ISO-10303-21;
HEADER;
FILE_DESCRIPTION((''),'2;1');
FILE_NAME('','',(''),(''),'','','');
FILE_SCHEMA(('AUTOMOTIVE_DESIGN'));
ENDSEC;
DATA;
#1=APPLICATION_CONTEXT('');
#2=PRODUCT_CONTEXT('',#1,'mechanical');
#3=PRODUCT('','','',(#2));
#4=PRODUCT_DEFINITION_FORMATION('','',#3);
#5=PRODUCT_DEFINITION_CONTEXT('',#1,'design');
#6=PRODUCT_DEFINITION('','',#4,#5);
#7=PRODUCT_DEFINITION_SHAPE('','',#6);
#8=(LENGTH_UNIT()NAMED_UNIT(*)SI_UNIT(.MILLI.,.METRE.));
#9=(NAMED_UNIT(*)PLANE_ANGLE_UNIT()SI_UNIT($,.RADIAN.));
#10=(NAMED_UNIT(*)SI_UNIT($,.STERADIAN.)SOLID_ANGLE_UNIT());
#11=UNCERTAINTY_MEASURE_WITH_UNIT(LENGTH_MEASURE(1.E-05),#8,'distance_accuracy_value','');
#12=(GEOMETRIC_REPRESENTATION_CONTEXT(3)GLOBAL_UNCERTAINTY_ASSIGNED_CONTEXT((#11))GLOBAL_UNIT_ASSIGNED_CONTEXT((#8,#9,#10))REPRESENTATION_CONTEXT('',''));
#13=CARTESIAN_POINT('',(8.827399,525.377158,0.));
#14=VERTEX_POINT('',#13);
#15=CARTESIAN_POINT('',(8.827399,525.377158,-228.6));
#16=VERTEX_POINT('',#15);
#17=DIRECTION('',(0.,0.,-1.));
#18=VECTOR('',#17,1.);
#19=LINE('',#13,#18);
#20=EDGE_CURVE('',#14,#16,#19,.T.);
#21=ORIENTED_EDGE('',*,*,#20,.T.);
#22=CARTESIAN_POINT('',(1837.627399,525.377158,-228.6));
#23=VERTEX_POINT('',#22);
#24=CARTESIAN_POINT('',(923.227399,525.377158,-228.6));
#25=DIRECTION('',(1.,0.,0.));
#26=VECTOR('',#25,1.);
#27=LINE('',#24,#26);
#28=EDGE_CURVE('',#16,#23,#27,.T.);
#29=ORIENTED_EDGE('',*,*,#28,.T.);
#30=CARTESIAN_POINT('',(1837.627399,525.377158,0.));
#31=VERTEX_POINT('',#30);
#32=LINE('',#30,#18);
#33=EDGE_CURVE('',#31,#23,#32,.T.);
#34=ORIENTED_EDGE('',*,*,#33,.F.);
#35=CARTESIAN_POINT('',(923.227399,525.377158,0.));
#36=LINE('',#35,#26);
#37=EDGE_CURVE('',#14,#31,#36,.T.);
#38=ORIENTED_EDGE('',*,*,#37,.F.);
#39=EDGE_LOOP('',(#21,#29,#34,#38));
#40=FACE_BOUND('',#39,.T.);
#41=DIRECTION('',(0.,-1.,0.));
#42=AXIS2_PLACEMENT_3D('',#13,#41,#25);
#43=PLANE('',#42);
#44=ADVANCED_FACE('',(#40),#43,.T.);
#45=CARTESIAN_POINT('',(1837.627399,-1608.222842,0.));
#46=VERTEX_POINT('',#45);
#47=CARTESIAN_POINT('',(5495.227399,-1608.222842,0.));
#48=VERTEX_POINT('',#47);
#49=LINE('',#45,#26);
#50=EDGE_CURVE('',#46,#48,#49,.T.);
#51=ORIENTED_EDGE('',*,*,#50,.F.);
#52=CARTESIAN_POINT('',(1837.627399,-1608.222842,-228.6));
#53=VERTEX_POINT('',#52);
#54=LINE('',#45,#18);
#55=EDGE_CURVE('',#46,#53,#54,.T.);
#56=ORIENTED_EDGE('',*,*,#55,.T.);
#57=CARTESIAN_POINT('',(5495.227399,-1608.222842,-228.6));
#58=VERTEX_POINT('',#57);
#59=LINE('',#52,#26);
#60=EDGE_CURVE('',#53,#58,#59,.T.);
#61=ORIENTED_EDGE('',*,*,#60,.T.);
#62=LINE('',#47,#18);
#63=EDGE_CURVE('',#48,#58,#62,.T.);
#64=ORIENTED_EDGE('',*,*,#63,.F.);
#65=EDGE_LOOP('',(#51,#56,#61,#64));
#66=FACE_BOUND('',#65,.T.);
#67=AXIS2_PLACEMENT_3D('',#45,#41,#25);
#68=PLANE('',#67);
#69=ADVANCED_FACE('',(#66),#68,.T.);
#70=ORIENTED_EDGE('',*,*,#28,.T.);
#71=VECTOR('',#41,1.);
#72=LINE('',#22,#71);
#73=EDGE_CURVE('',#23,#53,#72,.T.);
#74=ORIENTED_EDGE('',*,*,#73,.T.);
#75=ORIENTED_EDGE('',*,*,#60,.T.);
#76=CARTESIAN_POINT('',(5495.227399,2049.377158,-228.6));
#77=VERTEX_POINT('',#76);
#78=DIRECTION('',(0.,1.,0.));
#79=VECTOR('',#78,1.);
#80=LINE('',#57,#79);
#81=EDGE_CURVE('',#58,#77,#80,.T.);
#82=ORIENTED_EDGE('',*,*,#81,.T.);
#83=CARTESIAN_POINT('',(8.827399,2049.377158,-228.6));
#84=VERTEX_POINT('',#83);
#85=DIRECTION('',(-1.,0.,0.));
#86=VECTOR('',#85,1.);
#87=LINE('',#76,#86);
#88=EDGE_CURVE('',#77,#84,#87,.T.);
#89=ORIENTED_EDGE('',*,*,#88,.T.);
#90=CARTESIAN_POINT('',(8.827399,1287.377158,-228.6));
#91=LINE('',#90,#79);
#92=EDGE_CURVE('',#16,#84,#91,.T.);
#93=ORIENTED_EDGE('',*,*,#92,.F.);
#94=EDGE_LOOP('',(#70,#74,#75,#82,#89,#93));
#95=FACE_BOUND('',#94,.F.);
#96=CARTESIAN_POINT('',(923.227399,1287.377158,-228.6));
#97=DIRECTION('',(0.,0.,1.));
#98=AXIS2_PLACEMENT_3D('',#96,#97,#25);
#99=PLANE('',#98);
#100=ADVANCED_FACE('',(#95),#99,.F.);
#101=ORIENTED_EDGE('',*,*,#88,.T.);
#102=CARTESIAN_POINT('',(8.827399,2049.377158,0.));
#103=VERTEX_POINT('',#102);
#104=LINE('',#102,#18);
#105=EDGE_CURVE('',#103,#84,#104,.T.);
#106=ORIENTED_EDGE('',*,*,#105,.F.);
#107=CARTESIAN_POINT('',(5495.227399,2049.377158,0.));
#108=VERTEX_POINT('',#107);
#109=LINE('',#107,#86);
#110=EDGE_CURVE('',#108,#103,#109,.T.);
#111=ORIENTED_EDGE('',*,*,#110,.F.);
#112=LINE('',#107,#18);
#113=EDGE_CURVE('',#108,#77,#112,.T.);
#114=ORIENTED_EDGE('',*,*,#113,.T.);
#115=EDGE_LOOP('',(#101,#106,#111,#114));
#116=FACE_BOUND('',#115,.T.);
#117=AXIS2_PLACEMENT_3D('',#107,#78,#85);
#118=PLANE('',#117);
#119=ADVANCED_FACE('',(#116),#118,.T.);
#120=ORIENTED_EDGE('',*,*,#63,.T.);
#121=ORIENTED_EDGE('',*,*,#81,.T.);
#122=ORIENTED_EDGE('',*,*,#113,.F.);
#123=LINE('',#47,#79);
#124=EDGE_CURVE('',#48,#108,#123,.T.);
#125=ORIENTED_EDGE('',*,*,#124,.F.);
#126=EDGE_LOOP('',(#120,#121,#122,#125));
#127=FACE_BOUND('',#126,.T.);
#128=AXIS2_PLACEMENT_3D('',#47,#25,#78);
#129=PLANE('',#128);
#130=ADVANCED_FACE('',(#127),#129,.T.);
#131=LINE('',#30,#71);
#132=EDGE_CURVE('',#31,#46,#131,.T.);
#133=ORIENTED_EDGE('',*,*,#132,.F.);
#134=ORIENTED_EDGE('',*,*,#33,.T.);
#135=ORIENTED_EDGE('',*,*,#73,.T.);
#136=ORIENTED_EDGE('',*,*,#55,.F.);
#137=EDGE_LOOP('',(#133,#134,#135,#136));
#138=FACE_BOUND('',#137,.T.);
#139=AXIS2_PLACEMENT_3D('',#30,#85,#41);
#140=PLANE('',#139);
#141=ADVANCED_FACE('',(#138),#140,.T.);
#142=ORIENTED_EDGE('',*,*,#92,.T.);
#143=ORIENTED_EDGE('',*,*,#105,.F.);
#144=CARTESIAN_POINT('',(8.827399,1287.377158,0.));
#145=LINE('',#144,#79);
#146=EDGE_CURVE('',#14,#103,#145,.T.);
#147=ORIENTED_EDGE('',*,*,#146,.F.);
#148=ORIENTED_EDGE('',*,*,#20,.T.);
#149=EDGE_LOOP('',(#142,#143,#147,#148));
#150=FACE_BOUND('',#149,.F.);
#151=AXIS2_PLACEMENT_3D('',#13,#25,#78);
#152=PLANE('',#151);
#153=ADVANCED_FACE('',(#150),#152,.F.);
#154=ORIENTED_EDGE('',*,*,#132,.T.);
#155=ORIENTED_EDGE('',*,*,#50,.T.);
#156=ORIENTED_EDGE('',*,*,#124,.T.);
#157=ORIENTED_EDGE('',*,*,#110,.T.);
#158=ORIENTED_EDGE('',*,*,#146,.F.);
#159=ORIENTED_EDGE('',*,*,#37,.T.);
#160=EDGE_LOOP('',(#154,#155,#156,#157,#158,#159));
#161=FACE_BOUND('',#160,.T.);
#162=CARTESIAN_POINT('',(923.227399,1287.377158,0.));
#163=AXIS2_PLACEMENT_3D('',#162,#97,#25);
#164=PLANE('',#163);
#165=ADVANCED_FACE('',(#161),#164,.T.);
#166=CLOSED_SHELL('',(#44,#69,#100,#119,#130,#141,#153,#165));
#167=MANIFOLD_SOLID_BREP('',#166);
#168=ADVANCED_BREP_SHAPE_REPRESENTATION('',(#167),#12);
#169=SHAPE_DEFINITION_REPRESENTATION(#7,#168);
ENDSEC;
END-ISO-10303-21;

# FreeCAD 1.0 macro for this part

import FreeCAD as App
import Part
import Sketcher

V = App.Vector
Q = App.Units.Quantity


def add_polygon(sketch, points):
    """Adds a closed chain of lines whose ends are joined by coincident constraints."""
    first, n = sketch.GeometryCount, len(points)
    for a, b in zip(points, points[1:] + points[:1]):
        sketch.addGeometry(Part.LineSegment(App.Vector(*a, 0), App.Vector(*b, 0)), False)
    for i in range(n):
        sketch.addConstraint(Sketcher.Constraint("Coincident", first + i, 2, first + (i + 1) % n, 1))

doc = App.newDocument("Part")
body = doc.addObject("PartDesign::Body", "Body")

sketch1 = body.newObject("Sketcher::SketchObject", "Sketch")
sketch1.AttachmentSupport = (doc.getObject("XY_Plane"), [""])
sketch1.MapMode = "FlatFace"
add_polygon(sketch1, [(9, 2049), (9, 525), (1838, 525), (1838, -1608), (5495, -1608), (5495, 2049)])
sketch1.addConstraint([
    Sketcher.Constraint("Vertical", 0),
    Sketcher.Constraint("Horizontal", 1),
    Sketcher.Constraint("Vertical", 2),
    Sketcher.Constraint("Horizontal", 3),
    Sketcher.Constraint("Vertical", 4),
    Sketcher.Constraint("Horizontal", 5),
    Sketcher.Constraint("Equal", 3, 4),
    Sketcher.Constraint("DistanceX", 1, 1, 1, 2, Q("72 in")),
    Sketcher.Constraint("DistanceX", 3, 1, 3, 2, Q("144 in")),
    Sketcher.Constraint("DistanceY", 0, 2, 0, 1, Q("60 in")),
    Sketcher.Constraint("DistanceX", -1, 1, 0, 2, 8.827399),
    Sketcher.Constraint("DistanceY", -1, 1, 0, 2, 525.377158),
])
pad1 = body.newObject("PartDesign::Pad", "Pad")
pad1.Profile = sketch1
pad1.Length = Q("9 in")
pad1.Reversed = True

doc.recompute()
